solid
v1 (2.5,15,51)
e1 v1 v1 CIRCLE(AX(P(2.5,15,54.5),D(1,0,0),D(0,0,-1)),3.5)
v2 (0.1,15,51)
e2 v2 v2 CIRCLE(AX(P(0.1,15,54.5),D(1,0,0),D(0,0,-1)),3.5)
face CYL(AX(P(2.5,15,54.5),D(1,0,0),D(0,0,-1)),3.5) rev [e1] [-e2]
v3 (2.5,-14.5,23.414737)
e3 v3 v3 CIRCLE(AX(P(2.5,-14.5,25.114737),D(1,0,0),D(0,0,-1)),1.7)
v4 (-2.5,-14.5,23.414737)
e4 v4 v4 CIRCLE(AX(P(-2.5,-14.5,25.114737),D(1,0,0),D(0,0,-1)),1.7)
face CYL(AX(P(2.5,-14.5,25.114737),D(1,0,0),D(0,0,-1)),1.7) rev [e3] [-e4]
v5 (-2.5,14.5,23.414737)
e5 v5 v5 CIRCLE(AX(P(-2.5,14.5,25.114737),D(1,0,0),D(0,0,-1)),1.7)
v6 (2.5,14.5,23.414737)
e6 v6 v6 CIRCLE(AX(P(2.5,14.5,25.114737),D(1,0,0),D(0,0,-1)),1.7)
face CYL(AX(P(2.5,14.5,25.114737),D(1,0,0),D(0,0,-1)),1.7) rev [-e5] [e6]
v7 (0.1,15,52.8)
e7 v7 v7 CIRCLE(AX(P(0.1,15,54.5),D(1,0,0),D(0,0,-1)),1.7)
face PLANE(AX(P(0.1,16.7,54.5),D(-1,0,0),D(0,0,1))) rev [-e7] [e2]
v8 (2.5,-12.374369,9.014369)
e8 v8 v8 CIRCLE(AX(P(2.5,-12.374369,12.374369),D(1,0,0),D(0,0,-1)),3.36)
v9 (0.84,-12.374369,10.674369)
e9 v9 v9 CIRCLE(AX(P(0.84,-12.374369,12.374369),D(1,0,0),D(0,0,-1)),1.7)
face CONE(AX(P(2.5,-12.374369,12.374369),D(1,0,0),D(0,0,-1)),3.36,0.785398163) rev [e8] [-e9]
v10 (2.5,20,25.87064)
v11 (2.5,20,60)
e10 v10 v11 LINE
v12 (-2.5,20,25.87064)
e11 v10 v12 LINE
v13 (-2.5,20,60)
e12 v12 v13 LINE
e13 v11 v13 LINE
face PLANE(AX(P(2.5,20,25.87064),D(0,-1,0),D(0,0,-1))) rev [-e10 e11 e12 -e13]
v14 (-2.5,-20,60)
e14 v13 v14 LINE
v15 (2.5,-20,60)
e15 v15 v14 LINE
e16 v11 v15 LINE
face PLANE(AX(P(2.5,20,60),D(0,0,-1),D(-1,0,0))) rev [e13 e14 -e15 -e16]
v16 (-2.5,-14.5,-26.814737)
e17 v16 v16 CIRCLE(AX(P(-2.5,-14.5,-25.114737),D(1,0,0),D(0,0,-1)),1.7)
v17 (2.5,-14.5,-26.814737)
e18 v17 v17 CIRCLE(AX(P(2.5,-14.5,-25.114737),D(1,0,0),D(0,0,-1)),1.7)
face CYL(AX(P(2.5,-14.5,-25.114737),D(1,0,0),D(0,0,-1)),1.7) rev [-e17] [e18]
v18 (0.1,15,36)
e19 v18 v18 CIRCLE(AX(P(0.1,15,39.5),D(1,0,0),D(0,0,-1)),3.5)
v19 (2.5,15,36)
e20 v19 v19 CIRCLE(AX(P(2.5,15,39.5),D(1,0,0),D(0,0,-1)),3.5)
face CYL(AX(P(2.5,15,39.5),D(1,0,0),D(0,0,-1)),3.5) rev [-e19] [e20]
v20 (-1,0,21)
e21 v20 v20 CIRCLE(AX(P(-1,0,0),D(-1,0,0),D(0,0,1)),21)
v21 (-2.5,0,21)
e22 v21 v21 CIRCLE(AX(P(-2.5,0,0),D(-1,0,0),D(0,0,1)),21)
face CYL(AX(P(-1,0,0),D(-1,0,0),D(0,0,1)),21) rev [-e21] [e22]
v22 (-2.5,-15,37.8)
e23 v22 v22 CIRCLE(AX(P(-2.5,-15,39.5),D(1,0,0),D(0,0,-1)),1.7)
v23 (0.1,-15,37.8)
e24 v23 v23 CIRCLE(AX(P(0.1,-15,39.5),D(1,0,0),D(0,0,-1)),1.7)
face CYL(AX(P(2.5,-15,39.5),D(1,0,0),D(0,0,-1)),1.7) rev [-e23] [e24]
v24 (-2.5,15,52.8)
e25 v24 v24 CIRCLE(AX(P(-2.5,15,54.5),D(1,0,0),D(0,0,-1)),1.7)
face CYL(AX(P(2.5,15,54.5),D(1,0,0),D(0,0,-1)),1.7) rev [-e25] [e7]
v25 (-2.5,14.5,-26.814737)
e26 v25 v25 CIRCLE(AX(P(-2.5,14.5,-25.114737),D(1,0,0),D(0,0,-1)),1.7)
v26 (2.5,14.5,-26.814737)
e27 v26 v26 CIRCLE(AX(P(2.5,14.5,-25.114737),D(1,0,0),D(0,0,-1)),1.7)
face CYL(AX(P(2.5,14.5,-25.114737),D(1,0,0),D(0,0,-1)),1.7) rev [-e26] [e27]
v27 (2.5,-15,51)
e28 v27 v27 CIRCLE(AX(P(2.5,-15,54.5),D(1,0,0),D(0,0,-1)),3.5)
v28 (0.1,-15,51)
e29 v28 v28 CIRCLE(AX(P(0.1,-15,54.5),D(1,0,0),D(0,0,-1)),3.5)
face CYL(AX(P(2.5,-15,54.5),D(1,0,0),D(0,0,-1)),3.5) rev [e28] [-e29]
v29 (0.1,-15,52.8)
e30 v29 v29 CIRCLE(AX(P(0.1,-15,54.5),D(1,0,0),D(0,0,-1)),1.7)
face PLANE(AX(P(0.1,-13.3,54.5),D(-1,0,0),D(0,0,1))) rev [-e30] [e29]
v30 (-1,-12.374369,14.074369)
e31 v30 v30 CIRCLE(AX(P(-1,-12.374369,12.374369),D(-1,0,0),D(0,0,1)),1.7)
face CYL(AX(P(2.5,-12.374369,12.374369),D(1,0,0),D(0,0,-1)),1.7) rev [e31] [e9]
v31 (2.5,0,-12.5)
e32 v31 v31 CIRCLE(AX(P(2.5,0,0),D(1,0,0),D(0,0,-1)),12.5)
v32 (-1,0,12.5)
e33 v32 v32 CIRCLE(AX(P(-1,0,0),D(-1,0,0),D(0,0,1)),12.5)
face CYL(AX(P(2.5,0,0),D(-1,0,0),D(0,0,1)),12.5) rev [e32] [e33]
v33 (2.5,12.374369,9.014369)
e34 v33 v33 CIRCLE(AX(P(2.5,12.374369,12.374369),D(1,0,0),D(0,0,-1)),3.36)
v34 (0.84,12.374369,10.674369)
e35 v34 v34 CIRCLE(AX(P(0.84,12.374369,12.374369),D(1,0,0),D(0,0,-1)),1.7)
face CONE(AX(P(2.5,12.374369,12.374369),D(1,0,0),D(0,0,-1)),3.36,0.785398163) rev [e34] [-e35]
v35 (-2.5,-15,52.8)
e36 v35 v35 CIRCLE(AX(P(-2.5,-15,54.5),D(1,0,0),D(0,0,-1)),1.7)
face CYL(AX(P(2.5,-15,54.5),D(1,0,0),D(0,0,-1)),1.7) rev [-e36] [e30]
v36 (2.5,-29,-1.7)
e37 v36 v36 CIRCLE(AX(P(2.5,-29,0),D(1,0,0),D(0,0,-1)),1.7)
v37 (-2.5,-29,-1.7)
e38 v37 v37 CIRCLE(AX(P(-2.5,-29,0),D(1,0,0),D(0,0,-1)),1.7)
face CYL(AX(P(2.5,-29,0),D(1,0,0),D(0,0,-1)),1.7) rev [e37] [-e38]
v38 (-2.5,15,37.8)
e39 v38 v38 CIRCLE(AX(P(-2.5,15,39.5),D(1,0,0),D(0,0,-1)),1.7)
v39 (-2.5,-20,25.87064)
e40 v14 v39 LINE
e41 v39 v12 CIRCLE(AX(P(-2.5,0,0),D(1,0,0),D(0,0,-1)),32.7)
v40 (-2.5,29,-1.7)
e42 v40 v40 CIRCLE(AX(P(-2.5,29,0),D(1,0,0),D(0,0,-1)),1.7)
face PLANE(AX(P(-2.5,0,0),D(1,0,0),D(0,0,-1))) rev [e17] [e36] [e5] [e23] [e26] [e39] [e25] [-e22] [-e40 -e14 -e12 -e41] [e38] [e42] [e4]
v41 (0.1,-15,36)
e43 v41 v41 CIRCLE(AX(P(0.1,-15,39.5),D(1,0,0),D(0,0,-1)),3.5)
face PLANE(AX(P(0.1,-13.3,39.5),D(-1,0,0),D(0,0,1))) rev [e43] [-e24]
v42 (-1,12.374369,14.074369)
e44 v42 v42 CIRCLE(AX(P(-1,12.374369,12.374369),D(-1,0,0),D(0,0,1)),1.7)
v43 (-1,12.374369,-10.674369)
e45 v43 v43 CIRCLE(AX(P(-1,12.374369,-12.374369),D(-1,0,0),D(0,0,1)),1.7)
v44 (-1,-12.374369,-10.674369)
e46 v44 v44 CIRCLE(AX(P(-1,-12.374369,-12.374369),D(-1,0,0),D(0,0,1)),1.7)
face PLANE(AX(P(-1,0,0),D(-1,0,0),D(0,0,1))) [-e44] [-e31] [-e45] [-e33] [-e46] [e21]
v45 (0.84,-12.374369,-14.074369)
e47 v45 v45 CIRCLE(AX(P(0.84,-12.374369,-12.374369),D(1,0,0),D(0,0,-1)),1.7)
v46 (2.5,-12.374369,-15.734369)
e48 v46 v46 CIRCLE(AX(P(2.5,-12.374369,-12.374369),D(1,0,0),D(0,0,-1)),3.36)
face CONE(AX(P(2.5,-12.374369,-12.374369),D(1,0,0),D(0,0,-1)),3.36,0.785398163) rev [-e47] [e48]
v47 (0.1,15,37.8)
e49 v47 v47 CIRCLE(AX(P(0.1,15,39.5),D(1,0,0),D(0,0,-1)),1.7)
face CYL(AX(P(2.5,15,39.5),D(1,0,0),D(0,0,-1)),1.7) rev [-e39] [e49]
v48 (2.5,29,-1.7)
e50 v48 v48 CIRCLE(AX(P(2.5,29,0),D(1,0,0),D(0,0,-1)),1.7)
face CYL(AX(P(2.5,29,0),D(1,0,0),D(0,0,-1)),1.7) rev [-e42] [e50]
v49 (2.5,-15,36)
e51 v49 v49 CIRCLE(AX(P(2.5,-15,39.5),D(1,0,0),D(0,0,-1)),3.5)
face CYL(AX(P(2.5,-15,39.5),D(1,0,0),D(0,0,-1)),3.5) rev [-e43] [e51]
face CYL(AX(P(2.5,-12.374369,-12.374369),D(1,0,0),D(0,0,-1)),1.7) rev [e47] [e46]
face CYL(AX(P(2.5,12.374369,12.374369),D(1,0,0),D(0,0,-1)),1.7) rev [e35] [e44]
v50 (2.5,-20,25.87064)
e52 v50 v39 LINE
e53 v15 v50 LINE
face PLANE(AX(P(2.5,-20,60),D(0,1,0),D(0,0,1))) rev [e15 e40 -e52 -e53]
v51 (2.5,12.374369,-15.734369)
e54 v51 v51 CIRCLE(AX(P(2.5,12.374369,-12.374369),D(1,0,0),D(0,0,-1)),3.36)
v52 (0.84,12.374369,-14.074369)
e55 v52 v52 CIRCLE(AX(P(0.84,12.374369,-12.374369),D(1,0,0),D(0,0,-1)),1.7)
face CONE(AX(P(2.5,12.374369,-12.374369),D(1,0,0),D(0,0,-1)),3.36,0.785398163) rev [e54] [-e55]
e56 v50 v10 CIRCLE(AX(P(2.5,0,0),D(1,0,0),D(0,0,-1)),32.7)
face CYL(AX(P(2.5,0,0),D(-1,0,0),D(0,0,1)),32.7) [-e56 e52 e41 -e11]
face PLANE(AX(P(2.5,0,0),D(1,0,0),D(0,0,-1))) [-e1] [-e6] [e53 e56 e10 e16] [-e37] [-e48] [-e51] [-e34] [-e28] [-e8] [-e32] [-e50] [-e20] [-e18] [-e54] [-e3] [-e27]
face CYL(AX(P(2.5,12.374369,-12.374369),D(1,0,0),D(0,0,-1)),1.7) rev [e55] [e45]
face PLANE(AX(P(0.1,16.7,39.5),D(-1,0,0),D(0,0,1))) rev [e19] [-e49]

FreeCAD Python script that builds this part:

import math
import FreeCAD as App
import Part
import Sketcher

doc = App.newDocument("Part")
params = doc.addObject("Spreadsheet::Sheet", "Params")
for row, (alias, value) in enumerate([
    ("sketch1_diameter", "25 mm"),
    ("sketch1_radius", "32.7 mm"),
    ("sketch1_width", "40 mm"),
    ("pad1_length", "5 mm"),
    ("sketch2_diameter", "42 mm"),
    ("pocket1_length", "1.5 mm"),
    ("sketch3_diameter", "3.4 mm"),
    ("hole_diameter", "3.4 mm"),
    ("hole_depth", "10 mm"),
    ("hole_csink_diameter", "6.72 mm"),
    ("sketch4_diameter", "3.4 mm"),
    ("hole2_diameter", "3.4 mm"),
    ("sketch5_diameter", "3.4 mm"),
    ("hole3_diameter", "3.4 mm"),
    ("hole3_cbore_diameter", "7 mm"),
    ("hole3_cbore_depth", "2.4 mm"),
], start=1):
    params.set(f"A{row}", alias)
    params.set(f"B{row}", "=" + value)
    params.setAlias(f"B{row}", alias)

body = doc.addObject("PartDesign::Body", "Body")

# Sketch on YZ plane
sketch1 = body.newObject("Sketcher::SketchObject", "Sketch")
sketch1.AttachmentSupport = (doc.getObject("YZ_Plane"), [""])
sketch1.MapMode = "FlatFace"
sketch1.addGeometry(Part.LineSegment(App.Vector(20, 26, 0), App.Vector(20, 60, 0)), False)
sketch1.addGeometry(Part.LineSegment(App.Vector(20, 60, 0), App.Vector(-20, 60, 0)), False)
sketch1.addGeometry(Part.LineSegment(App.Vector(-20, 60, 0), App.Vector(-20, 26, 0)), False)
sketch1.addGeometry(Part.ArcOfCircle(Part.Circle(App.Vector(0, 0, 0), App.Vector(0, 0, 1), 33), math.radians(128), math.radians(412)), False)
sketch1.addGeometry(Part.Circle(App.Vector(0, 0, 0), App.Vector(0, 0, 1), 12), False)
sketch1.addConstraint(Sketcher.Constraint("Coincident", 0, 2, 1, 1))
sketch1.addConstraint(Sketcher.Constraint("Coincident", 1, 2, 2, 1))
sketch1.addConstraint(Sketcher.Constraint("Coincident", 2, 2, 3, 1))
sketch1.addConstraint(Sketcher.Constraint("Coincident", 3, 2, 0, 1))
sketch1.addConstraint(Sketcher.Constraint("Vertical", 0))
sketch1.addConstraint(Sketcher.Constraint("Horizontal", 1))
sketch1.addConstraint(Sketcher.Constraint("Vertical", 2))
sketch1.addConstraint(Sketcher.Constraint("Coincident", 3, 3, -1, 1))
sketch1.addConstraint(Sketcher.Constraint("Coincident", 4, 3, -1, 1))
sketch1.addConstraint(Sketcher.Constraint("Horizontal", 2, 2, 3, 2))
sketch1.addConstraint(Sketcher.Constraint("Diameter", 4, 25.0))
sketch1.addConstraint(Sketcher.Constraint("Radius", 3, 32.7))
sketch1.addConstraint(Sketcher.Constraint("DistanceX", 1, 2, 1, 1, 40.0))
sketch1.addConstraint(Sketcher.Constraint("DistanceY", -1, 1, 0, 2, 60.0))
sketch1.setExpression("Constraints[10]", "Params.sketch1_diameter")
sketch1.setExpression("Constraints[11]", "Params.sketch1_radius")
sketch1.setExpression("Constraints[12]", "Params.sketch1_width")
pad1 = body.newObject("PartDesign::Pad", "Pad")
pad1.Profile = sketch1
pad1.setExpression("Length", "Params.pad1_length")
pad1.Midplane = True

# Sketch on YZ plane
sketch2 = body.newObject("Sketcher::SketchObject", "Sketch001")
sketch2.AttachmentSupport = (doc.getObject("YZ_Plane"), [""])
sketch2.MapMode = "FlatFace"
sketch2.AttachmentOffset = App.Placement(App.Vector(0, 0, -2.5), App.Rotation())
sketch2.addGeometry(Part.Circle(App.Vector(0, 0, 0), App.Vector(0, 0, 1), 21), False)
sketch2.addConstraint(Sketcher.Constraint("Coincident", 0, 3, -1, 1))
sketch2.addConstraint(Sketcher.Constraint("Diameter", 0, 42.0))
sketch2.setExpression("Constraints[1]", "Params.sketch2_diameter")
pocket1 = body.newObject("PartDesign::Pocket", "Pocket")
pocket1.Profile = sketch2
pocket1.setExpression("Length", "Params.pocket1_length")
pocket1.Reversed = True

# Sketch on YZ plane
sketch3 = body.newObject("Sketcher::SketchObject", "Sketch002")
sketch3.AttachmentSupport = (doc.getObject("YZ_Plane"), [""])
sketch3.MapMode = "FlatFace"
sketch3.AttachmentOffset = App.Placement(App.Vector(0, 0, 2.5), App.Rotation())
sketch3.addGeometry(Part.Circle(App.Vector(12.4, -12.4, 0), App.Vector(0, 0, 1), 1.7), False)
sketch3.addGeometry(Part.Circle(App.Vector(-12.4, 12.4, 0), App.Vector(0, 0, 1), 1.7), False)
sketch3.addGeometry(Part.Circle(App.Vector(12.4, 12.4, 0), App.Vector(0, 0, 1), 1.7), False)
sketch3.addGeometry(Part.Circle(App.Vector(-12.4, -12.4, 0), App.Vector(0, 0, 1), 1.7), False)
sketch3.addConstraint(Sketcher.Constraint("Equal", 0, 1))
sketch3.addConstraint(Sketcher.Constraint("Equal", 1, 2))
sketch3.addConstraint(Sketcher.Constraint("Equal", 2, 3))
sketch3.addConstraint(Sketcher.Constraint("Symmetric", 0, 3, 1, 3, -1, 1))
sketch3.addConstraint(Sketcher.Constraint("Symmetric", 2, 3, 3, 3, -1, 1))
sketch3.addConstraint(Sketcher.Constraint("Symmetric", 1, 3, 2, 3, -2))
sketch3.addConstraint(Sketcher.Constraint("Diameter", 0, 3.4))
sketch3.addConstraint(Sketcher.Constraint("DistanceX", -1, 1, 0, 3, 12.374369))
sketch3.addConstraint(Sketcher.Constraint("DistanceY", 0, 3, -1, 1, 12.374369))
sketch3.setExpression("Constraints[6]", "Params.sketch3_diameter")
doc.recompute()
hole = body.newObject("PartDesign::Hole", "Hole")
hole.Profile = sketch3
hole.ThreadType = "None"
hole.setExpression("Diameter", "Params.hole_diameter")
hole.DepthType = "Dimension"
hole.setExpression("Depth", "Params.hole_depth")
hole.DrillPoint = "Angled"
hole.DrillPointAngle = 118
hole.HoleCutType = "Countersink"
hole.setExpression("HoleCutDiameter", "Params.hole_csink_diameter")
hole.HoleCutCountersinkAngle = 90

# Sketch on YZ plane
sketch4 = body.newObject("Sketcher::SketchObject", "Sketch003")
sketch4.AttachmentSupport = (doc.getObject("YZ_Plane"), [""])
sketch4.MapMode = "FlatFace"
sketch4.AttachmentOffset = App.Placement(App.Vector(0, 0, 2.5), App.Rotation())
sketch4.addGeometry(Part.Circle(App.Vector(29, 0, 0), App.Vector(0, 0, 1), 1.7), False)
sketch4.addGeometry(Part.Circle(App.Vector(14.5, -25.1, 0), App.Vector(0, 0, 1), 1.7), False)
sketch4.addGeometry(Part.Circle(App.Vector(-14.5, -25.1, 0), App.Vector(0, 0, 1), 1.7), False)
sketch4.addGeometry(Part.Circle(App.Vector(-29, 0, 0), App.Vector(0, 0, 1), 1.7), False)
sketch4.addGeometry(Part.Circle(App.Vector(-14.5, 25.1, 0), App.Vector(0, 0, 1), 1.7), False)
sketch4.addGeometry(Part.Circle(App.Vector(14.5, 25.1, 0), App.Vector(0, 0, 1), 1.7), False)
sketch4.addConstraint(Sketcher.Constraint("Equal", 0, 1))
sketch4.addConstraint(Sketcher.Constraint("Equal", 1, 2))
sketch4.addConstraint(Sketcher.Constraint("Equal", 2, 3))
sketch4.addConstraint(Sketcher.Constraint("Equal", 3, 4))
sketch4.addConstraint(Sketcher.Constraint("Equal", 4, 5))
sketch4.addConstraint(Sketcher.Constraint("Symmetric", 0, 3, 3, 3, -1, 1))
sketch4.addConstraint(Sketcher.Constraint("Symmetric", 1, 3, 4, 3, -1, 1))
sketch4.addConstraint(Sketcher.Constraint("Symmetric", 2, 3, 5, 3, -1, 1))
sketch4.addConstraint(Sketcher.Constraint("Symmetric", 1, 3, 2, 3, -2))
sketch4.addConstraint(Sketcher.Constraint("PointOnObject", 0, 3, -1))
sketch4.addConstraint(Sketcher.Constraint("Diameter", 0, 3.4))
sketch4.addConstraint(Sketcher.Constraint("DistanceX", -1, 1, 0, 3, 29.0))
sketch4.addConstraint(Sketcher.Constraint("DistanceX", 2, 3, 1, 3, 29.0))
sketch4.addConstraint(Sketcher.Constraint("DistanceY", 1, 3, -1, 1, 25.114737))
sketch4.setExpression("Constraints[10]", "Params.sketch4_diameter")
doc.recompute()
hole2 = body.newObject("PartDesign::Hole", "Hole001")
hole2.Profile = sketch4
hole2.ThreadType = "None"
hole2.setExpression("Diameter", "Params.hole2_diameter")
hole2.DepthType = "ThroughAll"

# Sketch on YZ plane
sketch5 = body.newObject("Sketcher::SketchObject", "Sketch004")
sketch5.AttachmentSupport = (doc.getObject("YZ_Plane"), [""])
sketch5.MapMode = "FlatFace"
sketch5.AttachmentOffset = App.Placement(App.Vector(0, 0, 2.5), App.Rotation())
sketch5.addGeometry(Part.Circle(App.Vector(15, 39.5, 0), App.Vector(0, 0, 1), 1.7), False)
sketch5.addGeometry(Part.Circle(App.Vector(-15, 54.5, 0), App.Vector(0, 0, 1), 1.7), False)
sketch5.addGeometry(Part.Circle(App.Vector(15, 54.5, 0), App.Vector(0, 0, 1), 1.7), False)
sketch5.addGeometry(Part.Circle(App.Vector(-15, 39.5, 0), App.Vector(0, 0, 1), 1.7), False)
sketch5.addConstraint(Sketcher.Constraint("Equal", 0, 1))
sketch5.addConstraint(Sketcher.Constraint("Equal", 1, 2))
sketch5.addConstraint(Sketcher.Constraint("Equal", 2, 3))
sketch5.addConstraint(Sketcher.Constraint("Symmetric", 1, 3, 2, 3, -2))
sketch5.addConstraint(Sketcher.Constraint("Symmetric", 0, 3, 3, 3, -2))
sketch5.addConstraint(Sketcher.Constraint("Vertical", 0, 3, 2, 3))
sketch5.addConstraint(Sketcher.Constraint("Diameter", 0, 3.4))
sketch5.addConstraint(Sketcher.Constraint("DistanceX", -1, 1, 0, 3, 15.0))
sketch5.addConstraint(Sketcher.Constraint("DistanceY", 0, 3, 1, 3, 15.0))
sketch5.addConstraint(Sketcher.Constraint("DistanceY", -1, 1, 0, 3, 39.5))
sketch5.setExpression("Constraints[6]", "Params.sketch5_diameter")
doc.recompute()
hole3 = body.newObject("PartDesign::Hole", "Hole002")
hole3.Profile = sketch5
hole3.ThreadType = "None"
hole3.setExpression("Diameter", "Params.hole3_diameter")
hole3.DepthType = "ThroughAll"
hole3.HoleCutType = "Counterbore"
hole3.setExpression("HoleCutDiameter", "Params.hole3_cbore_diameter")
hole3.setExpression("HoleCutDepth", "Params.hole3_cbore_depth")

doc.recompute()
